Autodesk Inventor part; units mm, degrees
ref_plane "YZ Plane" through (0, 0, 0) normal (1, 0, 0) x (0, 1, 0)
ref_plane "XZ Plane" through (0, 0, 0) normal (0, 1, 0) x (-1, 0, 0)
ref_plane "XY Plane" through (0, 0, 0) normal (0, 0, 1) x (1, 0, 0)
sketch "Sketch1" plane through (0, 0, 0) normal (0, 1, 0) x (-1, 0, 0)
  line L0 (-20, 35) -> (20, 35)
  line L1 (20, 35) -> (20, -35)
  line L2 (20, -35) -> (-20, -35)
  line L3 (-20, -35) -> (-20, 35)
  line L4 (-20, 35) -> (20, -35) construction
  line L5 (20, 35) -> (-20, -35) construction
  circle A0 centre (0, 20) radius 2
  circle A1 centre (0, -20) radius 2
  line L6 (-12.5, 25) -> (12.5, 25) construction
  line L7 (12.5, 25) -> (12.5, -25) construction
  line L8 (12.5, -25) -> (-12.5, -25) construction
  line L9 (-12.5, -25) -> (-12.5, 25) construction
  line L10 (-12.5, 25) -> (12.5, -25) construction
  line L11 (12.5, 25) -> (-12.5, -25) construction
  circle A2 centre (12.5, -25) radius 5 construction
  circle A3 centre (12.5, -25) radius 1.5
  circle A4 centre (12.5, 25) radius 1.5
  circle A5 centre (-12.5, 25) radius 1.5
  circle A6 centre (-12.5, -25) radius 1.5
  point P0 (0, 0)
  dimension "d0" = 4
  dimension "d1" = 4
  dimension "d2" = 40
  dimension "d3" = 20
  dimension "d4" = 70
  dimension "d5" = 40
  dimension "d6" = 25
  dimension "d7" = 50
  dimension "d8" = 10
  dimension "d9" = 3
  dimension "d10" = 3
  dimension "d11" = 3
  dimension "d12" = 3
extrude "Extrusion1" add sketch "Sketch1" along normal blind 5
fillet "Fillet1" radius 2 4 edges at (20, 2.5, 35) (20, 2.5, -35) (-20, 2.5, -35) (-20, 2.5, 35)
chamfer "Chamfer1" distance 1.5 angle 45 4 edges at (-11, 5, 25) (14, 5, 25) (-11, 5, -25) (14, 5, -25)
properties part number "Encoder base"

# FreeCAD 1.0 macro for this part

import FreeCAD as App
import Part
import Sketcher
from FreeCAD import Vector


def edges_at(feature, points):
    """Names of the edges that pass closest to the given points."""
    edges = feature.Shape.Edges
    near = lambda p: min(range(len(edges)), key=lambda i: edges[i].distToShape(Part.Vertex(*p))[0])
    return sorted({f"Edge{near(p) + 1}" for p in points})

doc = App.newDocument("Part")
body = doc.addObject("PartDesign::Body", "Body")

sketch1 = doc.addObject("Sketcher::SketchObject", "Sketch")
body.addObject(sketch1)
sketch1.AttachmentSupport = (doc.XZ_Plane, [""])
sketch1.MapMode = "FlatFace"
sketch1.addGeometry([
    Part.LineSegment(Vector(-20, 35, 0), Vector(20, 35, 0)),
    Part.LineSegment(Vector(20, 35, 0), Vector(20, -35, 0)),
    Part.LineSegment(Vector(20, -35, 0), Vector(-20, -35, 0)),
    Part.LineSegment(Vector(-20, -35, 0), Vector(-20, 35, 0)),
    Part.Circle(Vector(12.5, -25, 0), Vector(0, 0, 1), 1.5),
    Part.Circle(Vector(0, -20, 0), Vector(0, 0, 1), 2),
    Part.Circle(Vector(-12.5, -25, 0), Vector(0, 0, 1), 1.5),
    Part.Circle(Vector(12.5, 25, 0), Vector(0, 0, 1), 1.5),
    Part.Circle(Vector(0, 20, 0), Vector(0, 0, 1), 2),
    Part.Circle(Vector(-12.5, 25, 0), Vector(0, 0, 1), 1.5),
], False)
sketch1.addConstraint([
    Sketcher.Constraint("Coincident", 0, 2, 1, 1),
    Sketcher.Constraint("Coincident", 1, 2, 2, 1),
    Sketcher.Constraint("Coincident", 2, 2, 3, 1),
    Sketcher.Constraint("Coincident", 3, 2, 0, 1),
    Sketcher.Constraint("Horizontal", 0),
    Sketcher.Constraint("Vertical", 1),
    Sketcher.Constraint("Horizontal", 2),
    Sketcher.Constraint("Vertical", 3),
    Sketcher.Constraint("Equal", 4, 6),
    Sketcher.Constraint("Equal", 6, 7),
    Sketcher.Constraint("Equal", 5, 8),
    Sketcher.Constraint("Equal", 7, 9),
    Sketcher.Constraint("Symmetric", 6, 3, 7, 3, -1, 1),
    Sketcher.Constraint("Symmetric", 5, 3, 8, 3, -1, 1),
    Sketcher.Constraint("Symmetric", 4, 3, 9, 3, -1, 1),
    Sketcher.Constraint("Symmetric", 0, 2, 2, 2, -1, 1),
    Sketcher.Constraint("Symmetric", 4, 3, 6, 3, -2),
    Sketcher.Constraint("PointOnObject", 5, 3, -2),
    Sketcher.Constraint("Diameter", 4, 3.0),
    Sketcher.Constraint("Diameter", 5, 4.0),
    Sketcher.Constraint("DistanceX", 0, 1, 0, 2, 40.0),
    Sketcher.Constraint("DistanceY", 1, 2, 1, 1, 70.0),
    Sketcher.Constraint("DistanceY", 4, 3, -1, 1, 25.0),
    Sketcher.Constraint("DistanceY", 5, 3, -1, 1, 20.0),
    Sketcher.Constraint("DistanceX", 6, 3, 4, 3, 25.0),
])
pad1 = doc.addObject("PartDesign::Pad", "Pad")
body.addObject(pad1)
pad1.Profile = sketch1
pad1.Length = 5
pad1.Reversed = True
doc.recompute()

fillet = doc.addObject("PartDesign::Fillet", "Fillet")
body.addObject(fillet)
fillet.Base = (pad1, edges_at(pad1, [
    (20, 2.5, 35),
    (20, 2.5, -35),
    (-20, 2.5, -35),
    (-20, 2.5, 35),
]))
fillet.Radius = 2
doc.recompute()

chamfer = doc.addObject("PartDesign::Chamfer", "Chamfer")
body.addObject(chamfer)
chamfer.Base = (fillet, edges_at(fillet, [
    (-11, 5, 25),
    (14, 5, 25),
    (-11, 5, -25),
    (14, 5, -25),
]))
chamfer.Size = 1.5

doc.recompute()
